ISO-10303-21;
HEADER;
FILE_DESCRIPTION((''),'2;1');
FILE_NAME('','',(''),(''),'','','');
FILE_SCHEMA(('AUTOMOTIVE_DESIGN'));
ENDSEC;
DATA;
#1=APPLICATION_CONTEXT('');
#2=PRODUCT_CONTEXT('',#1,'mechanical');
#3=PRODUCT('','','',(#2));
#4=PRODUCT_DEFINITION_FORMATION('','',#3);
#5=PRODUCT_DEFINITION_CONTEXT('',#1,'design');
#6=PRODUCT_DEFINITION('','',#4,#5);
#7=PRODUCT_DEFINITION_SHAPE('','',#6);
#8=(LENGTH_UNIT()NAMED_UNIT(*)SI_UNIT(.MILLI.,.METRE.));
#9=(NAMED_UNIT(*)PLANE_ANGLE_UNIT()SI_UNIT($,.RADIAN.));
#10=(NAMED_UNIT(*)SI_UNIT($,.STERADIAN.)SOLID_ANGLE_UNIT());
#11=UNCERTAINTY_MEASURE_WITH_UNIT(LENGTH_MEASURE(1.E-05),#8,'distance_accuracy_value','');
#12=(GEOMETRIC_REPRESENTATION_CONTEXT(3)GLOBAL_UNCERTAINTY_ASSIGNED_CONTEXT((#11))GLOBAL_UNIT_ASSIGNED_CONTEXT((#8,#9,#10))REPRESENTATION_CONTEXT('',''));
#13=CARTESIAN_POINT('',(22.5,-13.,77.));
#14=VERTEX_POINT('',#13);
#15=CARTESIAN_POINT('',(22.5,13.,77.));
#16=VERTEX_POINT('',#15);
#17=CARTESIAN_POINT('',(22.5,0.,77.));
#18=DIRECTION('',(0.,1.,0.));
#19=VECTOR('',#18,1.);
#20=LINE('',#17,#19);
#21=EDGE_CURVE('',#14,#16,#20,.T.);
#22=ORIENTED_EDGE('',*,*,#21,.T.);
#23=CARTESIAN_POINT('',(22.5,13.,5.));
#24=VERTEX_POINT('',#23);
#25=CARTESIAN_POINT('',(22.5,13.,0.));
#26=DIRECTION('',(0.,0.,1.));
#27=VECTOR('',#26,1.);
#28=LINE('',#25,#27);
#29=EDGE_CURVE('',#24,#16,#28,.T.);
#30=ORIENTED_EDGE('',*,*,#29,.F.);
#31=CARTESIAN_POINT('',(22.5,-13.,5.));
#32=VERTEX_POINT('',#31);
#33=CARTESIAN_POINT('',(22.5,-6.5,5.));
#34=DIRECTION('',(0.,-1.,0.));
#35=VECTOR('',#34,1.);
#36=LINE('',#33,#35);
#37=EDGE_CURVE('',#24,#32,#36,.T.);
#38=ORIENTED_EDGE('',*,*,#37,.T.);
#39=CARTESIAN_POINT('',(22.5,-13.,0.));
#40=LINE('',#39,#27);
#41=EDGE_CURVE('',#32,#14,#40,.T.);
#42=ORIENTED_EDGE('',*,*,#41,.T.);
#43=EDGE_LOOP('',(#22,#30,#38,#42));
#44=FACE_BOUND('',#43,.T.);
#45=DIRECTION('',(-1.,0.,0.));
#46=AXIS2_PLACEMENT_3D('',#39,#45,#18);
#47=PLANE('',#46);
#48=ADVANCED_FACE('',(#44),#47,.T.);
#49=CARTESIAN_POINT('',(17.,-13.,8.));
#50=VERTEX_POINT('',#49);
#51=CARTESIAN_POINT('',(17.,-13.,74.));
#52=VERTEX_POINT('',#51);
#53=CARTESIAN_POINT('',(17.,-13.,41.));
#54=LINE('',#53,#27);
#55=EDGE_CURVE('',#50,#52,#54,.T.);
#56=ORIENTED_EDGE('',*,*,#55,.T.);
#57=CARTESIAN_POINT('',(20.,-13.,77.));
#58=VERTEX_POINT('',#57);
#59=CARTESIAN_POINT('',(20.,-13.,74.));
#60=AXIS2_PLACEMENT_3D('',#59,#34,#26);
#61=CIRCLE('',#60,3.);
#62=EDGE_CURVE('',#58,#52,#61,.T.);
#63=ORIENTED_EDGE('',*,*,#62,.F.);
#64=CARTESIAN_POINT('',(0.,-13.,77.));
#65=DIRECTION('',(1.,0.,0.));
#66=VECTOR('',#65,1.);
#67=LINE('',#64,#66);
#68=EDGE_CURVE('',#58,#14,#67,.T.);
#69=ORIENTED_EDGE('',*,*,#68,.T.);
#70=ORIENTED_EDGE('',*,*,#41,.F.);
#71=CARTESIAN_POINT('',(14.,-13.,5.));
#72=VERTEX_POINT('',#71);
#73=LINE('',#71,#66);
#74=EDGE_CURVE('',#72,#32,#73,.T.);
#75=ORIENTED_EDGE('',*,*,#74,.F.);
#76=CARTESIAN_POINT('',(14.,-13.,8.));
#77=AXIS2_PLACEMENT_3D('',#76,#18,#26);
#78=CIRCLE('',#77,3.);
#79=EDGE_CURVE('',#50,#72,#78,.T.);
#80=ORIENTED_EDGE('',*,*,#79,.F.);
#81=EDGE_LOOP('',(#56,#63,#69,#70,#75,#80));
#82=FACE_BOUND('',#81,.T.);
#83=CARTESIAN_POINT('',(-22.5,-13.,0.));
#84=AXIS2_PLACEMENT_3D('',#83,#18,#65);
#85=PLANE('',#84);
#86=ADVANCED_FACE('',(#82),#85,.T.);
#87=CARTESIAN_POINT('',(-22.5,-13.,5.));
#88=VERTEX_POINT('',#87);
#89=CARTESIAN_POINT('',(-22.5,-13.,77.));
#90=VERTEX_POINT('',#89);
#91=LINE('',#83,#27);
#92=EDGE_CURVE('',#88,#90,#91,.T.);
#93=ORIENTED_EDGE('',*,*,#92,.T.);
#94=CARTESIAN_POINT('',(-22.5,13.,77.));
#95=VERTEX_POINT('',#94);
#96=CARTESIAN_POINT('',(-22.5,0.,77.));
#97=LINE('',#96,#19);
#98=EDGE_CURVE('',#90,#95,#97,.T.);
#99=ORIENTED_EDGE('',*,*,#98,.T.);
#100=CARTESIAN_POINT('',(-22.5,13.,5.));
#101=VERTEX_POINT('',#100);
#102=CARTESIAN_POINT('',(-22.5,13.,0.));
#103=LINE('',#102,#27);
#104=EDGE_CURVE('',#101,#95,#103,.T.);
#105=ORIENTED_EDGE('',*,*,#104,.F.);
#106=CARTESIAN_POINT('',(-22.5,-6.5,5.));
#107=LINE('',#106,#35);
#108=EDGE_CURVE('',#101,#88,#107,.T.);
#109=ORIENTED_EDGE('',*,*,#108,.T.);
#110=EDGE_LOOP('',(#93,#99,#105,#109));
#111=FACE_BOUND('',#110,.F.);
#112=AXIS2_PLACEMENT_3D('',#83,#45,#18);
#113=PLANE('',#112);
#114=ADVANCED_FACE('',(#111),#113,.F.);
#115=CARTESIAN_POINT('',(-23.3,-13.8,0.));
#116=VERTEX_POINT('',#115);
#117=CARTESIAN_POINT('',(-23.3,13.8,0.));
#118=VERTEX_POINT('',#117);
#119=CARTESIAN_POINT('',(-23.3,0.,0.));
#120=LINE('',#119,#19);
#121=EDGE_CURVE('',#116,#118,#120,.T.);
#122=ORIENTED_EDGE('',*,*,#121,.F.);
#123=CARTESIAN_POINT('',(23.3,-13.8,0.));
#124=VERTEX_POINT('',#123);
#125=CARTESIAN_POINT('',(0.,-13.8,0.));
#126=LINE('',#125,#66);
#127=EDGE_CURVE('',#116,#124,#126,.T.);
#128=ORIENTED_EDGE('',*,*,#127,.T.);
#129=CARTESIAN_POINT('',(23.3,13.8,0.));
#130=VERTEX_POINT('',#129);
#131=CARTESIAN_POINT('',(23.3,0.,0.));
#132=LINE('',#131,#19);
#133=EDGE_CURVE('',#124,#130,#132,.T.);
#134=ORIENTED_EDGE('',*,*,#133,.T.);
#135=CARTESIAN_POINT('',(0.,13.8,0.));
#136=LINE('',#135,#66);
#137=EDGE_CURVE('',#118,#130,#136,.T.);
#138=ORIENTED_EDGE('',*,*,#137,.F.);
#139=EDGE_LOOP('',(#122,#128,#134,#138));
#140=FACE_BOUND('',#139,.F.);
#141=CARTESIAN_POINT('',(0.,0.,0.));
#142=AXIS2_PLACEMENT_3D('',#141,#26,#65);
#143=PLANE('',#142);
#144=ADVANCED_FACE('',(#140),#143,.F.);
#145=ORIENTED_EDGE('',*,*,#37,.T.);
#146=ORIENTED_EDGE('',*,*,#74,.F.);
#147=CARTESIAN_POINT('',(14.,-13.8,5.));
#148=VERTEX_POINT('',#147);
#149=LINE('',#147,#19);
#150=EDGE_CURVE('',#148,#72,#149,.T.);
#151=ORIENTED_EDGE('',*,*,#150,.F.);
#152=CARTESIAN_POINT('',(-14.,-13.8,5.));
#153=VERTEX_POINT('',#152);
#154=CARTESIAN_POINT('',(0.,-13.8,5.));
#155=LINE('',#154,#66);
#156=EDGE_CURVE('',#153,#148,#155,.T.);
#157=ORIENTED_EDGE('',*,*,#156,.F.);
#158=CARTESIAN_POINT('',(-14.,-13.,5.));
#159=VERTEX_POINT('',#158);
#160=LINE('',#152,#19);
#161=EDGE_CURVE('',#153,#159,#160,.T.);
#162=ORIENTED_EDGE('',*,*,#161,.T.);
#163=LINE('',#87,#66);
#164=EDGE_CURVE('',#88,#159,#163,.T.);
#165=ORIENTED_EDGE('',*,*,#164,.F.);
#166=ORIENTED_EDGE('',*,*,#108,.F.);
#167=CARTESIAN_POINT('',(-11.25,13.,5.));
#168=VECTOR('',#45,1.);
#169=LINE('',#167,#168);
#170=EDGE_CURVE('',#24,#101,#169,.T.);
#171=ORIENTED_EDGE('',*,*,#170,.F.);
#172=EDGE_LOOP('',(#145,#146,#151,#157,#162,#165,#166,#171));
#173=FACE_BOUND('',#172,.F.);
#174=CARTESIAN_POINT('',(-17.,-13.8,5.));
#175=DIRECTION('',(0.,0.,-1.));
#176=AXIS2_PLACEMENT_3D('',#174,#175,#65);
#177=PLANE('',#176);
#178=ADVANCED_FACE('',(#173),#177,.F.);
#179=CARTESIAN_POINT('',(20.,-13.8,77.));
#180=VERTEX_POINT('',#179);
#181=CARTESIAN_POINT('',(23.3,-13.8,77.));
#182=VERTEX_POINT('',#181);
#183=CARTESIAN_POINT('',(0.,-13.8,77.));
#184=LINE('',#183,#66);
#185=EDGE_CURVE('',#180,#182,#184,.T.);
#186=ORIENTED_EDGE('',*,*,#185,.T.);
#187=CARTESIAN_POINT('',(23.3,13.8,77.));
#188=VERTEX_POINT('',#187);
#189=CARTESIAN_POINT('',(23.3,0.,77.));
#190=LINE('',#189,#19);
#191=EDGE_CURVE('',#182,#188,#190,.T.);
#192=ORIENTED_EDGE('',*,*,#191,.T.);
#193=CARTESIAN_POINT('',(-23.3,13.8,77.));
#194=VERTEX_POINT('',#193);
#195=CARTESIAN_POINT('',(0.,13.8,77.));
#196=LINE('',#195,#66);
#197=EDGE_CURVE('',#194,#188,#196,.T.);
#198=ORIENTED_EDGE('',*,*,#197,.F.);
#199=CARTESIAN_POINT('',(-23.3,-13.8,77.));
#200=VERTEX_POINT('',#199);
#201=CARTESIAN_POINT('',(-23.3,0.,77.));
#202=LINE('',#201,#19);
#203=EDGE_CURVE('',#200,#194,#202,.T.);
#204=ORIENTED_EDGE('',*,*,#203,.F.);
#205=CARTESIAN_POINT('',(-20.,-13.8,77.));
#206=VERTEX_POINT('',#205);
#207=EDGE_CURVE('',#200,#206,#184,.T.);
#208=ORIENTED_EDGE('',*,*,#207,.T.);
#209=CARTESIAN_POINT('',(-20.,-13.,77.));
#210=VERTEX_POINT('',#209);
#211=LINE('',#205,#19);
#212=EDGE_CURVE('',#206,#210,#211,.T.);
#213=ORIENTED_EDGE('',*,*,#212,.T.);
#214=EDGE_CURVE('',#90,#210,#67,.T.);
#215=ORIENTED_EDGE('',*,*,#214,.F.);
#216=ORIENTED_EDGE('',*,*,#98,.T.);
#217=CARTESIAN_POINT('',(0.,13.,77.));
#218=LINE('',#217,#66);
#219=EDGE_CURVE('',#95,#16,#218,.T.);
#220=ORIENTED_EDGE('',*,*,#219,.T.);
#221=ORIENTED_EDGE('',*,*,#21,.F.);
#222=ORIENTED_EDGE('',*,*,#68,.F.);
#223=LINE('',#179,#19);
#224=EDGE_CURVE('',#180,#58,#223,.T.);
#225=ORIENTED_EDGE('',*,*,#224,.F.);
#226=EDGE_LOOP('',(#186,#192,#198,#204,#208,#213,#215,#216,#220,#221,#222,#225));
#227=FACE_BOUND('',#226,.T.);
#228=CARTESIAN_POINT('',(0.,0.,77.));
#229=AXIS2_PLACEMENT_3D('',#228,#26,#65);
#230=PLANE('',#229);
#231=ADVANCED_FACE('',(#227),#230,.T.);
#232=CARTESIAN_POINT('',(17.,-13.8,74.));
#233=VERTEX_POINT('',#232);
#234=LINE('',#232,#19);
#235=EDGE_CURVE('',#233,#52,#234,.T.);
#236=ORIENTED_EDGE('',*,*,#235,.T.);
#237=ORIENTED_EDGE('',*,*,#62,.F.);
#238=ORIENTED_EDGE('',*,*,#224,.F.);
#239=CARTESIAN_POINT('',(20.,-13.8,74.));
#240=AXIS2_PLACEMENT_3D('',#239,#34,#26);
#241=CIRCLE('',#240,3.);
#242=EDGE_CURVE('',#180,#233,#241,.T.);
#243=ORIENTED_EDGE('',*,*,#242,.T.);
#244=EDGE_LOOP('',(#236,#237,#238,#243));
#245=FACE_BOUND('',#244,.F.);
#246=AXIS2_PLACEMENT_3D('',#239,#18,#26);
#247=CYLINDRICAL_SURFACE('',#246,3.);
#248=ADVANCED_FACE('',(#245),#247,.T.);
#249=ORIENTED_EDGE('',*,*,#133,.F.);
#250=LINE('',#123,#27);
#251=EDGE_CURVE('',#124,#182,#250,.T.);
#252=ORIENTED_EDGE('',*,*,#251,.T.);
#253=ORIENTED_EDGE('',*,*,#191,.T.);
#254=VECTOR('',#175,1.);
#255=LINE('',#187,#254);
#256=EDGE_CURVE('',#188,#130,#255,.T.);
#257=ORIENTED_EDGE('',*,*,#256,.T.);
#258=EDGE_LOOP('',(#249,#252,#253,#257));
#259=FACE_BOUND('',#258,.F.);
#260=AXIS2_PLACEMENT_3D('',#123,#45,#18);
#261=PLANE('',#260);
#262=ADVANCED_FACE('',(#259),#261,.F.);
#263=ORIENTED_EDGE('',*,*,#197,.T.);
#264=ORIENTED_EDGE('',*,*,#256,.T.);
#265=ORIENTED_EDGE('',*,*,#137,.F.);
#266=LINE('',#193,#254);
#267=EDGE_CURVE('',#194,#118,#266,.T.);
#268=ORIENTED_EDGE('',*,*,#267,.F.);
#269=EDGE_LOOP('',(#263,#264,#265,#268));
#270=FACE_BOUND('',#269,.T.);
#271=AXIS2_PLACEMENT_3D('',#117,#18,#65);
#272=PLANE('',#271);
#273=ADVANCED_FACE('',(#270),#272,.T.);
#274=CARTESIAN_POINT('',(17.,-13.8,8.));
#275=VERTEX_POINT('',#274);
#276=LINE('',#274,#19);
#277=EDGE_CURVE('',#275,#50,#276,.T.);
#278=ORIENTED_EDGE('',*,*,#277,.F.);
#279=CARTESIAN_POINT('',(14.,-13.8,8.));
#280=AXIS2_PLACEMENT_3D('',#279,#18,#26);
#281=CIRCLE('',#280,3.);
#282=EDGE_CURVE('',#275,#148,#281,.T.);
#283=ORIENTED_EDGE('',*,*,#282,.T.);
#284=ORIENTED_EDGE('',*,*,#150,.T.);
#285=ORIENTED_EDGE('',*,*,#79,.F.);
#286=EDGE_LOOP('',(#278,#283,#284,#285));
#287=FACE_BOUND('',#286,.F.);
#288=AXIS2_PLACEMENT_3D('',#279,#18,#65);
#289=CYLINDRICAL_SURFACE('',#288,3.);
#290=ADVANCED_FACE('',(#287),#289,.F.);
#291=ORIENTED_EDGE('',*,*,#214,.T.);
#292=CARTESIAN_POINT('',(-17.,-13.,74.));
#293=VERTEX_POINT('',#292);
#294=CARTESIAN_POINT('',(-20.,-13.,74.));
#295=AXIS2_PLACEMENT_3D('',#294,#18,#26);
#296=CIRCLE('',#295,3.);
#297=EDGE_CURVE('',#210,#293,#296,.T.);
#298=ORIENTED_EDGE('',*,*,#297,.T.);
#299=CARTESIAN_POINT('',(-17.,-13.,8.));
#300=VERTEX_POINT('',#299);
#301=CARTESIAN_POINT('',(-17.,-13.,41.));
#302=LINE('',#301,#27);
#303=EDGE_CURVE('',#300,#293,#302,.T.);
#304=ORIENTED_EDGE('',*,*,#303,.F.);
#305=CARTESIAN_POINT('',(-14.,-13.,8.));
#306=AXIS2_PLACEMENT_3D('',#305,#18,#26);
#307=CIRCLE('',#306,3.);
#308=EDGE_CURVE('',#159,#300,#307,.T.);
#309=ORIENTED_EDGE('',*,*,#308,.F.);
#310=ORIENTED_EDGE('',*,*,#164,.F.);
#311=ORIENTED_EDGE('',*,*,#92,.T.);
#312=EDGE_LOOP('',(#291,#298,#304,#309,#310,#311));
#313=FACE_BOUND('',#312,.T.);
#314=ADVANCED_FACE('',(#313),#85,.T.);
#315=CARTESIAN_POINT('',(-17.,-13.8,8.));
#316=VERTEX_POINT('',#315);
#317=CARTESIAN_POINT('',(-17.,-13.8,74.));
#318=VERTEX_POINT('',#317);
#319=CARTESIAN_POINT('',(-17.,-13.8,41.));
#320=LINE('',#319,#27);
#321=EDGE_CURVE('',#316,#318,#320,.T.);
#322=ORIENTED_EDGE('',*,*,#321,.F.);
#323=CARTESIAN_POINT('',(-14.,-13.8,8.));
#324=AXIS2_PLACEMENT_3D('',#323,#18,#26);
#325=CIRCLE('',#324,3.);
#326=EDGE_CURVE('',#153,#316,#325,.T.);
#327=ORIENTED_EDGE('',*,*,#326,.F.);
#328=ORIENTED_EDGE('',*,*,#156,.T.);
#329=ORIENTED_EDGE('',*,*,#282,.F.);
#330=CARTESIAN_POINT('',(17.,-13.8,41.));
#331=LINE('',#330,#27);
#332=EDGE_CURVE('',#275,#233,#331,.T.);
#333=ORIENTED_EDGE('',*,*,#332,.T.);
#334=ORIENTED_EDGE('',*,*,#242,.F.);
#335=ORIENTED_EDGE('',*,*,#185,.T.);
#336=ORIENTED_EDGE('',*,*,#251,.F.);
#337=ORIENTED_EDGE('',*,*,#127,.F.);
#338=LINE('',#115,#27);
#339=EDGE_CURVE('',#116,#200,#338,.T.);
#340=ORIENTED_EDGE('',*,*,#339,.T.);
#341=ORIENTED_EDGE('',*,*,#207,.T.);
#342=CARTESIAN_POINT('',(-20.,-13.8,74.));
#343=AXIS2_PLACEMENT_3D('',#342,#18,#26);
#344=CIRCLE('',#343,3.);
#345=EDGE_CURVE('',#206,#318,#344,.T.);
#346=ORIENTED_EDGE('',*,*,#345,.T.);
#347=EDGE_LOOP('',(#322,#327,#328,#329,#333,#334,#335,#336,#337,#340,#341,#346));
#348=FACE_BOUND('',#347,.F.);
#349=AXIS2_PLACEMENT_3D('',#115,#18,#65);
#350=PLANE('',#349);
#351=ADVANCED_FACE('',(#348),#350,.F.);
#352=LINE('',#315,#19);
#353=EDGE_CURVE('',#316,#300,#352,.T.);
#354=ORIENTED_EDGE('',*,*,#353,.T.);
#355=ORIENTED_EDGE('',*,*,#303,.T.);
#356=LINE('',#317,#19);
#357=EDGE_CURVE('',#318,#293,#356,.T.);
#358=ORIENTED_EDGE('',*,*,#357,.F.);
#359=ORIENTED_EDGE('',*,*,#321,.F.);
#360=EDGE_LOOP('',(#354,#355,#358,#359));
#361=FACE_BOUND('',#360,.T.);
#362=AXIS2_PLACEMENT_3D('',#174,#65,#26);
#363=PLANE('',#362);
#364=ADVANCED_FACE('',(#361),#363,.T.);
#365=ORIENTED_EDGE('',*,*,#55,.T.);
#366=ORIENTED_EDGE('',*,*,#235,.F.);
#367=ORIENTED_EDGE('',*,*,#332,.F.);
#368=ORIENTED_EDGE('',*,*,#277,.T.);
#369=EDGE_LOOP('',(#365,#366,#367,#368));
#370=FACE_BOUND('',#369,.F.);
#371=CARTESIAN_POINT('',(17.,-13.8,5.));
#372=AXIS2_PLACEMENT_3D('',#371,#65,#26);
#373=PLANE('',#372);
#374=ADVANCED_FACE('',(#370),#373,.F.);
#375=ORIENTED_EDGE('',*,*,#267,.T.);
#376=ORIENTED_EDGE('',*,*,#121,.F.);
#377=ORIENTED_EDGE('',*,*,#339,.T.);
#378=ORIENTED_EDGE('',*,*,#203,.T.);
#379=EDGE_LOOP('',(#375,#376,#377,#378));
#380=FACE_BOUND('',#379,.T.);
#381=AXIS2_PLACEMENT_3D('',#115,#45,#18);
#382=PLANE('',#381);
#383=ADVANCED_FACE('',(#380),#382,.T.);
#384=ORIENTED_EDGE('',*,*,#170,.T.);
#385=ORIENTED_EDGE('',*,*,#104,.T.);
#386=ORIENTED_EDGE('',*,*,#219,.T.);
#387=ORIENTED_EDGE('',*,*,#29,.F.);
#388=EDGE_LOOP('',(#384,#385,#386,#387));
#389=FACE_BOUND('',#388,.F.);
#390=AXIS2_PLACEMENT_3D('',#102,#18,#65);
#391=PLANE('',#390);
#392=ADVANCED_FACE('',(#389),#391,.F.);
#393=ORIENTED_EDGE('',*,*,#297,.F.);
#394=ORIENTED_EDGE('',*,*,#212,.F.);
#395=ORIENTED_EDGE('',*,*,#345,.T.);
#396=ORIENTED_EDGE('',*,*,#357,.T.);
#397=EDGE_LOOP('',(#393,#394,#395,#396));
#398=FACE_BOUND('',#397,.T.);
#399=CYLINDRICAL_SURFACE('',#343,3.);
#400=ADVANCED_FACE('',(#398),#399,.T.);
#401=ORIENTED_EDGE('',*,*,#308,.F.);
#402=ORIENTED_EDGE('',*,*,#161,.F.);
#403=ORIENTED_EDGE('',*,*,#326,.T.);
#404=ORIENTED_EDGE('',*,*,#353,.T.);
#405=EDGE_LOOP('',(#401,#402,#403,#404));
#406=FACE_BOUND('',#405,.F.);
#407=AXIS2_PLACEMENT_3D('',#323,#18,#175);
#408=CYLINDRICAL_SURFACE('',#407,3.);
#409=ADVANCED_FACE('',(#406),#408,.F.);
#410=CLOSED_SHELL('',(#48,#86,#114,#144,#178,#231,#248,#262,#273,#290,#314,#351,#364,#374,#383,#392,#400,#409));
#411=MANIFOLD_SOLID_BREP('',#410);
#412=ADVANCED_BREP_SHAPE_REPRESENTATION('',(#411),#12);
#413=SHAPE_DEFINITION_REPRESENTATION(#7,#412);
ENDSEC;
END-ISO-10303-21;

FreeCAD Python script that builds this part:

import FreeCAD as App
import Part
import Sketcher


def edges_at(feature, points):
    """Names of the edges that pass closest to the given points."""
    edges = feature.Shape.Edges
    near = lambda p: min(range(len(edges)), key=lambda i: edges[i].distToShape(Part.Vertex(*p))[0])
    return sorted({f"Edge{near(p) + 1}" for p in points})

doc = App.newDocument("Part")
body = doc.addObject("PartDesign::Body", "Body")

# Sketch on XY plane
sketch1 = body.newObject("Sketcher::SketchObject", "Sketch")
sketch1.AttachmentSupport = (doc.getObject("XY_Plane"), [""])
sketch1.MapMode = "FlatFace"
sketch1.addGeometry(Part.LineSegment(App.Vector(-23, 14, 0), App.Vector(-23, -14, 0)), False)
sketch1.addGeometry(Part.LineSegment(App.Vector(-23, -14, 0), App.Vector(23, -14, 0)), False)
sketch1.addGeometry(Part.LineSegment(App.Vector(23, -14, 0), App.Vector(23, 14, 0)), False)
sketch1.addGeometry(Part.LineSegment(App.Vector(23, 14, 0), App.Vector(-23, 14, 0)), False)
sketch1.addGeometry(Part.LineSegment(App.Vector(22, -13, 0), App.Vector(-22, -13, 0)), False)
sketch1.addGeometry(Part.LineSegment(App.Vector(-22, -13, 0), App.Vector(-22, 13, 0)), False)
sketch1.addGeometry(Part.LineSegment(App.Vector(-22, 13, 0), App.Vector(22, 13, 0)), False)
sketch1.addGeometry(Part.LineSegment(App.Vector(22, 13, 0), App.Vector(22, -13, 0)), False)
sketch1.addConstraint(Sketcher.Constraint("Coincident", 0, 2, 1, 1))
sketch1.addConstraint(Sketcher.Constraint("Coincident", 1, 2, 2, 1))
sketch1.addConstraint(Sketcher.Constraint("Coincident", 2, 2, 3, 1))
sketch1.addConstraint(Sketcher.Constraint("Coincident", 3, 2, 0, 1))
sketch1.addConstraint(Sketcher.Constraint("Coincident", 4, 2, 5, 1))
sketch1.addConstraint(Sketcher.Constraint("Coincident", 5, 2, 6, 1))
sketch1.addConstraint(Sketcher.Constraint("Coincident", 6, 2, 7, 1))
sketch1.addConstraint(Sketcher.Constraint("Coincident", 7, 2, 4, 1))
sketch1.addConstraint(Sketcher.Constraint("Vertical", 0))
sketch1.addConstraint(Sketcher.Constraint("Horizontal", 1))
sketch1.addConstraint(Sketcher.Constraint("Vertical", 2))
sketch1.addConstraint(Sketcher.Constraint("Horizontal", 3))
sketch1.addConstraint(Sketcher.Constraint("Horizontal", 4))
sketch1.addConstraint(Sketcher.Constraint("Vertical", 5))
sketch1.addConstraint(Sketcher.Constraint("Horizontal", 6))
sketch1.addConstraint(Sketcher.Constraint("Vertical", 7))
sketch1.addConstraint(Sketcher.Constraint("Symmetric", 0, 2, 2, 2, -1, 1))
sketch1.addConstraint(Sketcher.Constraint("Symmetric", 4, 2, 6, 2, -1, 1))
sketch1.addConstraint(Sketcher.Constraint("DistanceX", 4, 2, 4, 1, 45.0))
sketch1.addConstraint(Sketcher.Constraint("DistanceY", 5, 1, 5, 2, 26.0))
sketch1.addConstraint(Sketcher.Constraint("DistanceX", 1, 1, 1, 2, 46.6))
sketch1.addConstraint(Sketcher.Constraint("DistanceY", 0, 2, 0, 1, 27.6))
pad1 = body.newObject("PartDesign::Pad", "Pad")
pad1.Profile = sketch1
pad1.Length = 77

# Sketch on XY plane
sketch2 = body.newObject("Sketcher::SketchObject", "Sketch001")
sketch2.AttachmentSupport = (doc.getObject("XY_Plane"), [""])
sketch2.MapMode = "FlatFace"
sketch2.addGeometry(Part.LineSegment(App.Vector(-23, -14, 0), App.Vector(-23, 14, 0)), False)
sketch2.addGeometry(Part.LineSegment(App.Vector(-23, 14, 0), App.Vector(23, 14, 0)), False)
sketch2.addGeometry(Part.LineSegment(App.Vector(23, 14, 0), App.Vector(23, -14, 0)), False)
sketch2.addGeometry(Part.LineSegment(App.Vector(23, -14, 0), App.Vector(-23, -14, 0)), False)
sketch2.addConstraint(Sketcher.Constraint("Coincident", 0, 2, 1, 1))
sketch2.addConstraint(Sketcher.Constraint("Coincident", 1, 2, 2, 1))
sketch2.addConstraint(Sketcher.Constraint("Coincident", 2, 2, 3, 1))
sketch2.addConstraint(Sketcher.Constraint("Coincident", 3, 2, 0, 1))
sketch2.addConstraint(Sketcher.Constraint("Vertical", 0))
sketch2.addConstraint(Sketcher.Constraint("Horizontal", 1))
sketch2.addConstraint(Sketcher.Constraint("Vertical", 2))
sketch2.addConstraint(Sketcher.Constraint("Horizontal", 3))
sketch2.addConstraint(Sketcher.Constraint("Symmetric", 0, 2, 2, 2, -1, 1))
sketch2.addConstraint(Sketcher.Constraint("DistanceX", 1, 1, 1, 2, 46.6))
sketch2.addConstraint(Sketcher.Constraint("DistanceY", 0, 1, 0, 2, 27.6))
pad2 = body.newObject("PartDesign::Pad", "Pad001")
pad2.Profile = sketch2
pad2.Length = 5

# Sketch on XZ plane
sketch3 = body.newObject("Sketcher::SketchObject", "Sketch002")
sketch3.AttachmentSupport = (doc.getObject("XZ_Plane"), [""])
sketch3.MapMode = "FlatFace"
sketch3.AttachmentOffset = App.Placement(App.Vector(0, 0, 13.8), App.Rotation())
sketch3.addGeometry(Part.LineSegment(App.Vector(-17, 77, 0), App.Vector(-17, 5, 0)), False)
sketch3.addGeometry(Part.LineSegment(App.Vector(-17, 5, 0), App.Vector(17, 5, 0)), False)
sketch3.addGeometry(Part.LineSegment(App.Vector(17, 5, 0), App.Vector(17, 77, 0)), False)
sketch3.addGeometry(Part.LineSegment(App.Vector(17, 77, 0), App.Vector(-17, 77, 0)), False)
sketch3.addConstraint(Sketcher.Constraint("Coincident", 0, 2, 1, 1))
sketch3.addConstraint(Sketcher.Constraint("Coincident", 1, 2, 2, 1))
sketch3.addConstraint(Sketcher.Constraint("Coincident", 2, 2, 3, 1))
sketch3.addConstraint(Sketcher.Constraint("Coincident", 3, 2, 0, 1))
sketch3.addConstraint(Sketcher.Constraint("Vertical", 0))
sketch3.addConstraint(Sketcher.Constraint("Horizontal", 1))
sketch3.addConstraint(Sketcher.Constraint("Vertical", 2))
sketch3.addConstraint(Sketcher.Constraint("Horizontal", 3))
sketch3.addConstraint(Sketcher.Constraint("DistanceX", 1, 1, 1, 2, 34.0))
sketch3.addConstraint(Sketcher.Constraint("DistanceY", 0, 2, 0, 1, 72.0))
sketch3.addConstraint(Sketcher.Constraint("DistanceX", 0, 2, -1, 1, 17.0))
sketch3.addConstraint(Sketcher.Constraint("DistanceY", -1, 1, 0, 2, 5.0))
pocket1 = body.newObject("PartDesign::Pocket", "Pocket")
pocket1.Profile = sketch3
pocket1.Length = 0.8
doc.recompute()

fillet = body.newObject("PartDesign::Fillet", "Fillet")
fillet.Base = (pocket1, edges_at(pocket1, [
    (-17, -13.4, 77),
    (17, -13.4, 77),
    (-17, -13.4, 5),
    (17, -13.4, 5),
]))
fillet.Radius = 3

doc.recompute()
